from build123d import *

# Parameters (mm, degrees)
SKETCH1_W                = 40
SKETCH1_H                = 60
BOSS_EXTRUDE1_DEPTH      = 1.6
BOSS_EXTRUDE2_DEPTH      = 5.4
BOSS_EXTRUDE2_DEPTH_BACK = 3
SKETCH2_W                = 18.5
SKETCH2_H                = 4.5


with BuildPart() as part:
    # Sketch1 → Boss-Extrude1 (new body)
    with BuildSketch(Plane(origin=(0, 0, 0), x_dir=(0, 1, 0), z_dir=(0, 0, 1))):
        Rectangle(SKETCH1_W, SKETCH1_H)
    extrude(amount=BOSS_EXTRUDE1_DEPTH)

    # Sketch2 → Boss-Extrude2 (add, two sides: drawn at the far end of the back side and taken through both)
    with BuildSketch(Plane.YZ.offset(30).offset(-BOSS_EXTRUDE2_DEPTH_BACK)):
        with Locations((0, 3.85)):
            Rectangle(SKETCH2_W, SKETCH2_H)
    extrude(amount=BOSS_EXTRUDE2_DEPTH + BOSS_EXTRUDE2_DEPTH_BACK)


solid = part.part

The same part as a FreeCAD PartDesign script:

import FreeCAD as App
import Part
import Sketcher
from FreeCAD import Vector
Q = App.Units.Quantity

doc = App.newDocument("Part")
params = doc.addObject("Spreadsheet::Sheet", "Params")
for row, (alias, value) in enumerate([
    ("sketch1_width", "60 mm"),
    ("sketch1_height", "40 mm"),
    ("pad1_length", "1.6 mm"),
    ("sketch2_width", "18.5 mm"),
    ("sketch2_height", "4.5 mm"),
    ("pad2_length", "5.4 mm"),
    ("pad2_length2", "3 mm"),
], start=1):
    params.set(f"A{row}", alias)
    params.set(f"B{row}", "=" + value)
    params.setAlias(f"B{row}", alias)

body = doc.addObject("PartDesign::Body", "Body")

sketch1 = body.newObject("Sketcher::SketchObject", "Sketch")
sketch1.AttachmentSupport = (doc.getObject("XY_Plane"), [""])
sketch1.MapMode = "FlatFace"
sketch1.addGeometry([
    Part.LineSegment(Vector(-30, -20, 0), Vector(30, -20, 0)),
    Part.LineSegment(Vector(30, -20, 0), Vector(30, 20, 0)),
    Part.LineSegment(Vector(30, 20, 0), Vector(-30, 20, 0)),
    Part.LineSegment(Vector(-30, 20, 0), Vector(-30, -20, 0)),
], False)
sketch1.addConstraint([
    Sketcher.Constraint("Coincident", 0, 2, 1, 1),
    Sketcher.Constraint("Coincident", 1, 2, 2, 1),
    Sketcher.Constraint("Coincident", 2, 2, 3, 1),
    Sketcher.Constraint("Coincident", 3, 2, 0, 1),
    Sketcher.Constraint("Horizontal", 0),
    Sketcher.Constraint("Vertical", 1),
    Sketcher.Constraint("Horizontal", 2),
    Sketcher.Constraint("Vertical", 3),
    Sketcher.Constraint("Symmetric", 0, 2, 2, 2, -1, 1),
    Sketcher.Constraint("DistanceX", 0, 1, 0, 2, Q("60 mm")),
    Sketcher.Constraint("DistanceY", 1, 1, 1, 2, Q("40 mm")),
])
sketch1.setExpression("Constraints[9]", "Params.sketch1_width")
sketch1.setExpression("Constraints[10]", "Params.sketch1_height")
pad1 = body.newObject("PartDesign::Pad", "Pad")
pad1.Profile = sketch1
pad1.setExpression("Length", "Params.pad1_length")

sketch2 = body.newObject("Sketcher::SketchObject", "Sketch001")
sketch2.AttachmentSupport = (doc.getObject("YZ_Plane"), [""])
sketch2.MapMode = "FlatFace"
sketch2.AttachmentOffset = App.Placement(Vector(0, 0, 30), App.Rotation())
sketch2.addGeometry([
    Part.LineSegment(Vector(-9.2, 6.1, 0), Vector(-9.2, 1.6, 0)),
    Part.LineSegment(Vector(-9.2, 1.6, 0), Vector(9.2, 1.6, 0)),
    Part.LineSegment(Vector(9.2, 1.6, 0), Vector(9.2, 6.1, 0)),
    Part.LineSegment(Vector(9.2, 6.1, 0), Vector(-9.2, 6.1, 0)),
], False)
sketch2.addConstraint([
    Sketcher.Constraint("Coincident", 0, 2, 1, 1),
    Sketcher.Constraint("Coincident", 1, 2, 2, 1),
    Sketcher.Constraint("Coincident", 2, 2, 3, 1),
    Sketcher.Constraint("Coincident", 3, 2, 0, 1),
    Sketcher.Constraint("Vertical", 0),
    Sketcher.Constraint("Horizontal", 1),
    Sketcher.Constraint("Vertical", 2),
    Sketcher.Constraint("Horizontal", 3),
    Sketcher.Constraint("DistanceX", 1, 1, 1, 2, Q("18.5 mm")),
    Sketcher.Constraint("DistanceY", 0, 2, 0, 1, Q("4.5 mm")),
    Sketcher.Constraint("DistanceY", -1, 1, 0, 2, Q("1.6 mm")),
    Sketcher.Constraint("DistanceX", 0, 2, -1, 1, Q("9.25 mm")),
])
sketch2.setExpression("Constraints[8]", "Params.sketch2_width")
sketch2.setExpression("Constraints[9]", "Params.sketch2_height")
pad2 = body.newObject("PartDesign::Pad", "Pad001")
pad2.Profile = sketch2
pad2.Type = "TwoLengths"
pad2.setExpression("Length", "Params.pad2_length")
pad2.setExpression("Length2", "Params.pad2_length2")

doc.recompute()
